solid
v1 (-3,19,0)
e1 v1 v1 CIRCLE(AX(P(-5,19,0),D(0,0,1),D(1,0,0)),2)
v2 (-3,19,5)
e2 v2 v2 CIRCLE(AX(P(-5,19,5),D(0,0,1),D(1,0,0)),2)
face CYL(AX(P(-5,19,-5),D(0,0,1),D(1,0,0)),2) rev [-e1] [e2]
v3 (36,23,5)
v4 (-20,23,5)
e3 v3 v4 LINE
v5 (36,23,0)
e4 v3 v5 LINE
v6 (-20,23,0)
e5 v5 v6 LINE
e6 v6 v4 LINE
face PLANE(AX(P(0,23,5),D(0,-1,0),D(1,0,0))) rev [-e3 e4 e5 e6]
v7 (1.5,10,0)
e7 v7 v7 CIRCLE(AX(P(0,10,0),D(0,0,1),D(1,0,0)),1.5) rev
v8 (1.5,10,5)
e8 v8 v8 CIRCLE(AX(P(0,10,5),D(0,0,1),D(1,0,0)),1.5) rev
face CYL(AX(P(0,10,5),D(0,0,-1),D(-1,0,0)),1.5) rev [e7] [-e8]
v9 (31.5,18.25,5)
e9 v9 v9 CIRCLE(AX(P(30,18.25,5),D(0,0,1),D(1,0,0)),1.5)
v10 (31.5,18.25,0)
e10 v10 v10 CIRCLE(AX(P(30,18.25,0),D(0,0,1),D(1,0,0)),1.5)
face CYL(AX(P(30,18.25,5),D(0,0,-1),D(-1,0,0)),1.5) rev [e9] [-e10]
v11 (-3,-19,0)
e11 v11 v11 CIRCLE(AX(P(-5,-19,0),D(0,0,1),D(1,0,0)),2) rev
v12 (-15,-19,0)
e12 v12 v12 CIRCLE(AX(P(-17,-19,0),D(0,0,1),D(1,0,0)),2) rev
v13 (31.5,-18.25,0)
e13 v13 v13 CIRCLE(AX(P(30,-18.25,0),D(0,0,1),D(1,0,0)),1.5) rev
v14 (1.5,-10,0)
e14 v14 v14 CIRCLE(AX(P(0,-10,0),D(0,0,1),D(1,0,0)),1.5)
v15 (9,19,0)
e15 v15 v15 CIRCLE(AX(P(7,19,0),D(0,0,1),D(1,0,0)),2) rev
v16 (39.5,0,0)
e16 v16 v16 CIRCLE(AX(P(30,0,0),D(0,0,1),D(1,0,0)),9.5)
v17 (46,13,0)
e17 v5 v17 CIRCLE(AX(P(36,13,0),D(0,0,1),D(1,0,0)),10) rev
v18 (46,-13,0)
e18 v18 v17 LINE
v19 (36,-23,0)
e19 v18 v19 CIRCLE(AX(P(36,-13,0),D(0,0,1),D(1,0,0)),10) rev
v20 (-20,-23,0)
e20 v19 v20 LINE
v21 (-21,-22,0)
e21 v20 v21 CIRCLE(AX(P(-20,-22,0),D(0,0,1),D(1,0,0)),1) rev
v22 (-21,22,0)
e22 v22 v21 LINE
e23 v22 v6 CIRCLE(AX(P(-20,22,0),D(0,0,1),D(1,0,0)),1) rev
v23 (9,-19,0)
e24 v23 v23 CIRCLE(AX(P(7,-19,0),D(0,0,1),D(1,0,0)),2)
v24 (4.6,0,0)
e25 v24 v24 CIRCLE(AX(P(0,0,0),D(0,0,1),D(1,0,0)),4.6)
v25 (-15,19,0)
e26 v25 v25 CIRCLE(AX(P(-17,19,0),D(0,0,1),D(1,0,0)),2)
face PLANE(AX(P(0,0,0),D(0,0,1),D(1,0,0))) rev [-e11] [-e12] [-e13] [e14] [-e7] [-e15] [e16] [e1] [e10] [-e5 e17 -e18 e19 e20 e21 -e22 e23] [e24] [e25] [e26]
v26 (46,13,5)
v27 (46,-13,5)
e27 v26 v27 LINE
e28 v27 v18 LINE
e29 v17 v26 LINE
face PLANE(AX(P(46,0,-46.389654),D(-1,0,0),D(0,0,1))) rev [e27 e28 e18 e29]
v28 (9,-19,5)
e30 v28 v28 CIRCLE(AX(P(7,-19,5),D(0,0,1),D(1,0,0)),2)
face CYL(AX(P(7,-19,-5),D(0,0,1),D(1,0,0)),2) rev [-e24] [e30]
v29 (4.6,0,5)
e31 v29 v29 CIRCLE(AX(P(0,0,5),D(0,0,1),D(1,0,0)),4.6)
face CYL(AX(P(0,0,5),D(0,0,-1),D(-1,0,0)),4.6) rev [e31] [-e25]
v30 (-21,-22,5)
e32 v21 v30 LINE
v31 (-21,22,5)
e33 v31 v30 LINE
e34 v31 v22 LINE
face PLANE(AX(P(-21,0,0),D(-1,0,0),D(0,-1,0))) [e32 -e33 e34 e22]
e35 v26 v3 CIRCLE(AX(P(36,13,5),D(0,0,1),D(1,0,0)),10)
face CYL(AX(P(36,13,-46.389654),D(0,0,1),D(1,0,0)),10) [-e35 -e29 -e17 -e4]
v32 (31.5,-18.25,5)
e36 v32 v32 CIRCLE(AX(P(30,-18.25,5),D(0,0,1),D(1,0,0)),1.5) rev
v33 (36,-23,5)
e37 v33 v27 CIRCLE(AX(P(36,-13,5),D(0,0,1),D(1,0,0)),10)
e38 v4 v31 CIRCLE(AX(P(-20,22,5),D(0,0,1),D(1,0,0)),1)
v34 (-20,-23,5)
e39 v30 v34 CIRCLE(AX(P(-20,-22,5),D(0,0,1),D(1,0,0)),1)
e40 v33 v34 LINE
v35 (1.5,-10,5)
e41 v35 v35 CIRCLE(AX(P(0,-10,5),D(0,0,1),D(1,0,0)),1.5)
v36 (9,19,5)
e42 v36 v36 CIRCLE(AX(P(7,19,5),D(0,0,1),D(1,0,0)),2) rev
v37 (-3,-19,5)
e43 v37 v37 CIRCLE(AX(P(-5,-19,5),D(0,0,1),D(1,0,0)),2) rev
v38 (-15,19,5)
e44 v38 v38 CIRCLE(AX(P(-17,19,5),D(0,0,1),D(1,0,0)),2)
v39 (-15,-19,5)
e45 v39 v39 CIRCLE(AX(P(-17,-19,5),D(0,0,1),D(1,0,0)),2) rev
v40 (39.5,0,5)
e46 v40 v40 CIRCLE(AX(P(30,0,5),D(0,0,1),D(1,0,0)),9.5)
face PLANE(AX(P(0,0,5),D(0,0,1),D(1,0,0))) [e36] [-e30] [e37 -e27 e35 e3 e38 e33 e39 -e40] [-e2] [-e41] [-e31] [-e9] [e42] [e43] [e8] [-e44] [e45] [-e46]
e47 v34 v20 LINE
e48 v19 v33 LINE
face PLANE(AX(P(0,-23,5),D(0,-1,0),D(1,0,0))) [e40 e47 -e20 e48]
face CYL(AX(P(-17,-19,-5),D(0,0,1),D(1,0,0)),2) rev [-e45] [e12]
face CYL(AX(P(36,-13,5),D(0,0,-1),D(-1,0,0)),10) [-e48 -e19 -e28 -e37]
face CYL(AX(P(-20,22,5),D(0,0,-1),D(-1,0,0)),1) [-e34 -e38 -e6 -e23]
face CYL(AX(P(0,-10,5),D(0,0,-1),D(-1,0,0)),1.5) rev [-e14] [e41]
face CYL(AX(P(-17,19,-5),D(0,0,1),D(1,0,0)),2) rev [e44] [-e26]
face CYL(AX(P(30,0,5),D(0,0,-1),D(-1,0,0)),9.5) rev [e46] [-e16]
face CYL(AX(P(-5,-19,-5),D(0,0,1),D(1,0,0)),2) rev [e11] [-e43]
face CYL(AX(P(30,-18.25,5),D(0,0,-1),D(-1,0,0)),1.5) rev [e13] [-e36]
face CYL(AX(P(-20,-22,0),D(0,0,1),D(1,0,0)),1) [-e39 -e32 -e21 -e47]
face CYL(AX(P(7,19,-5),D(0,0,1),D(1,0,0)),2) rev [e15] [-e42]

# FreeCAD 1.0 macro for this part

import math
import FreeCAD as App
import Part
import Sketcher
Q = App.Units.Quantity


def edges_at(feature, points):
    """Names of the edges that pass closest to the given points."""
    edges = feature.Shape.Edges
    near = lambda p: min(range(len(edges)), key=lambda i: edges[i].distToShape(Part.Vertex(*p))[0])
    return sorted({f"Edge{near(p) + 1}" for p in points})


def add_polygon(sketch, points):
    """Adds a closed chain of lines whose ends are joined by coincident constraints."""
    first, n = sketch.GeometryCount, len(points)
    for a, b in zip(points, points[1:] + points[:1]):
        sketch.addGeometry(Part.LineSegment(App.Vector(*a, 0), App.Vector(*b, 0)), False)
    for i in range(n):
        sketch.addConstraint(Sketcher.Constraint("Coincident", first + i, 2, first + (i + 1) % n, 1))

doc = App.newDocument("Part")
body = doc.addObject("PartDesign::Body", "Body")

sketch1 = body.newObject("Sketcher::SketchObject", "Sketch")
sketch1.AttachmentSupport = (doc.getObject("XY_Plane"), [""])
sketch1.MapMode = "FlatFace"
add_polygon(sketch1, [(-25, 23), (-25, -23), (40, -23), (40, 23)])
sketch1.addGeometry(Part.ArcOfCircle(Part.Circle(App.Vector(0, -10, 0), App.Vector(0, 0, 1), 1.5), math.radians(0), math.radians(90)), False)
sketch1.addGeometry(Part.ArcOfCircle(Part.Circle(App.Vector(0, -10, 0), App.Vector(0, 0, 1), 1.5), math.radians(90), math.radians(360)), False)
sketch1.addGeometry(Part.ArcOfCircle(Part.Circle(App.Vector(0, 0, 0), App.Vector(0, 0, 1), 4.6), math.radians(0), math.radians(270)), False)
sketch1.addGeometry(Part.ArcOfCircle(Part.Circle(App.Vector(0, 0, 0), App.Vector(0, 0, 1), 4.6), math.radians(-90), math.radians(0)), False)
sketch1.addGeometry(Part.Circle(App.Vector(30, -18.25, 0), App.Vector(0, 0, 1), 1.5), False)
sketch1.addGeometry(Part.Circle(App.Vector(0, 10, 0), App.Vector(0, 0, 1), 1.5), False)
sketch1.addGeometry(Part.ArcOfCircle(Part.Circle(App.Vector(30, 0, 0), App.Vector(0, 0, 1), 9.5), math.radians(0), math.radians(90)), False)
sketch1.addGeometry(Part.ArcOfCircle(Part.Circle(App.Vector(30, 0, 0), App.Vector(0, 0, 1), 9.5), math.radians(90), math.radians(360)), False)
sketch1.addGeometry(Part.ArcOfCircle(Part.Circle(App.Vector(30, 18.25, 0), App.Vector(0, 0, 1), 1.5), math.radians(0), math.radians(270)), False)
sketch1.addGeometry(Part.ArcOfCircle(Part.Circle(App.Vector(30, 18.25, 0), App.Vector(0, 0, 1), 1.5), math.radians(-90), math.radians(0)), False)
sketch1.addConstraint([
    Sketcher.Constraint("Tangent", 4, 1, 5, 2),
    Sketcher.Constraint("Coincident", 5, 1, 4, 2),
    Sketcher.Constraint("Tangent", 6, 1, 7, 2),
    Sketcher.Constraint("Coincident", 7, 1, 6, 2),
    Sketcher.Constraint("Tangent", 10, 1, 11, 2),
    Sketcher.Constraint("Coincident", 11, 1, 10, 2),
    Sketcher.Constraint("Tangent", 12, 1, 13, 2),
    Sketcher.Constraint("Coincident", 13, 1, 12, 2),
    Sketcher.Constraint("Vertical", 0),
    Sketcher.Constraint("Horizontal", 1),
    Sketcher.Constraint("Vertical", 2),
    Sketcher.Constraint("Horizontal", 3),
    Sketcher.Constraint("Coincident", 6, 3, -1, 1),
    Sketcher.Constraint("Equal", 5, 8),
    Sketcher.Constraint("Equal", 8, 9),
    Sketcher.Constraint("Equal", 9, 12),
    Sketcher.Constraint("Symmetric", 4, 3, 9, 3, -1, 1),
    Sketcher.Constraint("Symmetric", 8, 3, 12, 3, -1),
    Sketcher.Constraint("PointOnObject", 4, 3, -2),
    Sketcher.Constraint("PointOnObject", 10, 3, -1),
    Sketcher.Constraint("PointOnObject", 5, 1, -2),
    Sketcher.Constraint("PointOnObject", 6, 1, -1),
    Sketcher.Constraint("PointOnObject", 7, 1, -2),
    Sketcher.Constraint("PointOnObject", 10, 1, -1),
    Sketcher.Constraint("Horizontal", 5, 3, 4, 1),
    Sketcher.Constraint("Horizontal", 13, 3, 12, 1),
    Sketcher.Constraint("Vertical", 8, 3, 10, 3),
    Sketcher.Constraint("Vertical", 13, 3, 11, 1),
    Sketcher.Constraint("Vertical", 11, 1, 13, 1),
    Sketcher.Constraint("Diameter", 8, Q("3 mm")),
    Sketcher.Constraint("Radius", 6, Q("4.6 mm")),
    Sketcher.Constraint("Radius", 10, Q("9.5 mm")),
    Sketcher.Constraint("DistanceX", 1, 1, 1, 2, Q("65 mm")),
    Sketcher.Constraint("DistanceY", 0, 2, 0, 1, Q("46 mm")),
    Sketcher.Constraint("DistanceY", 4, 3, -1, 1, Q("10 mm")),
    Sketcher.Constraint("DistanceX", -1, 1, 8, 3, Q("30 mm")),
    Sketcher.Constraint("DistanceX", 0, 2, -1, 1, Q("25 mm")),
    Sketcher.Constraint("DistanceY", 0, 2, -1, 1, Q("23 mm")),
    Sketcher.Constraint("DistanceY", 8, 3, -1, 1, Q("18.25 mm")),
])
pad1 = body.newObject("PartDesign::Pad", "Pad")
pad1.Profile = sketch1
pad1.Length = 5

sketch2 = body.newObject("Sketcher::SketchObject", "Sketch001")
sketch2.AttachmentSupport = (doc.getObject("XY_Plane"), [""])
sketch2.MapMode = "FlatFace"
sketch2.AttachmentOffset = App.Placement(App.Vector(0, 0, 5), App.Rotation())
sketch2.addGeometry([
    Part.Circle(App.Vector(7, 19, 0), App.Vector(0, 0, 1), 2),
    Part.Circle(App.Vector(-5, -19, 0), App.Vector(0, 0, 1), 2),
    Part.Circle(App.Vector(-17, 19, 0), App.Vector(0, 0, 1), 2),
    Part.Circle(App.Vector(-5, 19, 0), App.Vector(0, 0, 1), 2),
    Part.Circle(App.Vector(7, -19, 0), App.Vector(0, 0, 1), 2),
    Part.Circle(App.Vector(-17, -19, 0), App.Vector(0, 0, 1), 2),
], False)
sketch2.addConstraint([
    Sketcher.Constraint("Equal", 0, 1),
    Sketcher.Constraint("Equal", 1, 2),
    Sketcher.Constraint("Equal", 2, 3),
    Sketcher.Constraint("Equal", 3, 4),
    Sketcher.Constraint("Equal", 4, 5),
    Sketcher.Constraint("Symmetric", 1, 3, 3, 3, -1),
    Sketcher.Constraint("Symmetric", 0, 3, 4, 3, -1),
    Sketcher.Constraint("Symmetric", 2, 3, 5, 3, -1),
    Sketcher.Constraint("Horizontal", 0, 3, 2, 3),
    Sketcher.Constraint("Horizontal", 2, 3, 3, 3),
    Sketcher.Constraint("Diameter", 0, Q("4 mm")),
    Sketcher.Constraint("DistanceX", -1, 1, 0, 3, Q("7 mm")),
    Sketcher.Constraint("DistanceY", -1, 1, 0, 3, Q("19 mm")),
    Sketcher.Constraint("DistanceX", 1, 3, -1, 1, Q("5 mm")),
    Sketcher.Constraint("DistanceX", 2, 3, -1, 1, Q("17 mm")),
])
pocket1 = body.newObject("PartDesign::Pocket", "Pocket")
pocket1.Profile = sketch2
pocket1.Length = 10

sketch3 = body.newObject("Sketcher::SketchObject", "Sketch002")
sketch3.AttachmentSupport = (doc.getObject("XY_Plane"), [""])
sketch3.MapMode = "FlatFace"
sketch3.AttachmentOffset = App.Placement(App.Vector(0, 0, 5), App.Rotation())
add_polygon(sketch3, [(-25, 23), (-25, -23), (-21, -23), (-21, 23)])
sketch3.addConstraint([
    Sketcher.Constraint("Vertical", 0),
    Sketcher.Constraint("Horizontal", 1),
    Sketcher.Constraint("Vertical", 2),
    Sketcher.Constraint("Horizontal", 3),
    Sketcher.Constraint("DistanceX", 1, 1, 1, 2, Q("4 mm")),
    Sketcher.Constraint("DistanceY", 0, 2, 0, 1, Q("46 mm")),
    Sketcher.Constraint("DistanceX", 0, 2, -1, 1, Q("25 mm")),
    Sketcher.Constraint("DistanceY", 0, 2, -1, 1, Q("23 mm")),
])
pocket2 = body.newObject("PartDesign::Pocket", "Pocket001")
pocket2.Profile = sketch3
pocket2.Type = "ThroughAll"

sketch4 = body.newObject("Sketcher::SketchObject", "Sketch003")
sketch4.AttachmentSupport = (doc.getObject("XY_Plane"), [""])
sketch4.MapMode = "FlatFace"
sketch4.AttachmentOffset = App.Placement(App.Vector(0, 0, 5), App.Rotation())
add_polygon(sketch4, [(40, 23), (40, -23), (46, -23), (46, 23)])
sketch4.addConstraint([
    Sketcher.Constraint("Vertical", 0),
    Sketcher.Constraint("Horizontal", 1),
    Sketcher.Constraint("Vertical", 2),
    Sketcher.Constraint("Horizontal", 3),
    Sketcher.Constraint("DistanceX", 1, 1, 1, 2, Q("6 mm")),
    Sketcher.Constraint("DistanceY", 0, 2, 0, 1, Q("46 mm")),
    Sketcher.Constraint("DistanceX", -1, 1, 0, 2, Q("40 mm")),
    Sketcher.Constraint("DistanceY", 0, 2, -1, 1, Q("23 mm")),
])
pad2 = body.newObject("PartDesign::Pad", "Pad001")
pad2.Profile = sketch4
pad2.Length = 5
pad2.Reversed = True
doc.recompute()

fillet = body.newObject("PartDesign::Fillet", "Fillet")
fillet.Base = (pad2, edges_at(pad2, [(46, -23, 2.5), (46, 23, 2.5)]))
fillet.Radius = 10
doc.recompute()

fillet2 = body.newObject("PartDesign::Fillet", "Fillet001")
fillet2.Base = (fillet, edges_at(fillet, [(-21, 23, 2.5), (-21, -23, 2.5)]))
fillet2.Radius = 1

doc.recompute()
